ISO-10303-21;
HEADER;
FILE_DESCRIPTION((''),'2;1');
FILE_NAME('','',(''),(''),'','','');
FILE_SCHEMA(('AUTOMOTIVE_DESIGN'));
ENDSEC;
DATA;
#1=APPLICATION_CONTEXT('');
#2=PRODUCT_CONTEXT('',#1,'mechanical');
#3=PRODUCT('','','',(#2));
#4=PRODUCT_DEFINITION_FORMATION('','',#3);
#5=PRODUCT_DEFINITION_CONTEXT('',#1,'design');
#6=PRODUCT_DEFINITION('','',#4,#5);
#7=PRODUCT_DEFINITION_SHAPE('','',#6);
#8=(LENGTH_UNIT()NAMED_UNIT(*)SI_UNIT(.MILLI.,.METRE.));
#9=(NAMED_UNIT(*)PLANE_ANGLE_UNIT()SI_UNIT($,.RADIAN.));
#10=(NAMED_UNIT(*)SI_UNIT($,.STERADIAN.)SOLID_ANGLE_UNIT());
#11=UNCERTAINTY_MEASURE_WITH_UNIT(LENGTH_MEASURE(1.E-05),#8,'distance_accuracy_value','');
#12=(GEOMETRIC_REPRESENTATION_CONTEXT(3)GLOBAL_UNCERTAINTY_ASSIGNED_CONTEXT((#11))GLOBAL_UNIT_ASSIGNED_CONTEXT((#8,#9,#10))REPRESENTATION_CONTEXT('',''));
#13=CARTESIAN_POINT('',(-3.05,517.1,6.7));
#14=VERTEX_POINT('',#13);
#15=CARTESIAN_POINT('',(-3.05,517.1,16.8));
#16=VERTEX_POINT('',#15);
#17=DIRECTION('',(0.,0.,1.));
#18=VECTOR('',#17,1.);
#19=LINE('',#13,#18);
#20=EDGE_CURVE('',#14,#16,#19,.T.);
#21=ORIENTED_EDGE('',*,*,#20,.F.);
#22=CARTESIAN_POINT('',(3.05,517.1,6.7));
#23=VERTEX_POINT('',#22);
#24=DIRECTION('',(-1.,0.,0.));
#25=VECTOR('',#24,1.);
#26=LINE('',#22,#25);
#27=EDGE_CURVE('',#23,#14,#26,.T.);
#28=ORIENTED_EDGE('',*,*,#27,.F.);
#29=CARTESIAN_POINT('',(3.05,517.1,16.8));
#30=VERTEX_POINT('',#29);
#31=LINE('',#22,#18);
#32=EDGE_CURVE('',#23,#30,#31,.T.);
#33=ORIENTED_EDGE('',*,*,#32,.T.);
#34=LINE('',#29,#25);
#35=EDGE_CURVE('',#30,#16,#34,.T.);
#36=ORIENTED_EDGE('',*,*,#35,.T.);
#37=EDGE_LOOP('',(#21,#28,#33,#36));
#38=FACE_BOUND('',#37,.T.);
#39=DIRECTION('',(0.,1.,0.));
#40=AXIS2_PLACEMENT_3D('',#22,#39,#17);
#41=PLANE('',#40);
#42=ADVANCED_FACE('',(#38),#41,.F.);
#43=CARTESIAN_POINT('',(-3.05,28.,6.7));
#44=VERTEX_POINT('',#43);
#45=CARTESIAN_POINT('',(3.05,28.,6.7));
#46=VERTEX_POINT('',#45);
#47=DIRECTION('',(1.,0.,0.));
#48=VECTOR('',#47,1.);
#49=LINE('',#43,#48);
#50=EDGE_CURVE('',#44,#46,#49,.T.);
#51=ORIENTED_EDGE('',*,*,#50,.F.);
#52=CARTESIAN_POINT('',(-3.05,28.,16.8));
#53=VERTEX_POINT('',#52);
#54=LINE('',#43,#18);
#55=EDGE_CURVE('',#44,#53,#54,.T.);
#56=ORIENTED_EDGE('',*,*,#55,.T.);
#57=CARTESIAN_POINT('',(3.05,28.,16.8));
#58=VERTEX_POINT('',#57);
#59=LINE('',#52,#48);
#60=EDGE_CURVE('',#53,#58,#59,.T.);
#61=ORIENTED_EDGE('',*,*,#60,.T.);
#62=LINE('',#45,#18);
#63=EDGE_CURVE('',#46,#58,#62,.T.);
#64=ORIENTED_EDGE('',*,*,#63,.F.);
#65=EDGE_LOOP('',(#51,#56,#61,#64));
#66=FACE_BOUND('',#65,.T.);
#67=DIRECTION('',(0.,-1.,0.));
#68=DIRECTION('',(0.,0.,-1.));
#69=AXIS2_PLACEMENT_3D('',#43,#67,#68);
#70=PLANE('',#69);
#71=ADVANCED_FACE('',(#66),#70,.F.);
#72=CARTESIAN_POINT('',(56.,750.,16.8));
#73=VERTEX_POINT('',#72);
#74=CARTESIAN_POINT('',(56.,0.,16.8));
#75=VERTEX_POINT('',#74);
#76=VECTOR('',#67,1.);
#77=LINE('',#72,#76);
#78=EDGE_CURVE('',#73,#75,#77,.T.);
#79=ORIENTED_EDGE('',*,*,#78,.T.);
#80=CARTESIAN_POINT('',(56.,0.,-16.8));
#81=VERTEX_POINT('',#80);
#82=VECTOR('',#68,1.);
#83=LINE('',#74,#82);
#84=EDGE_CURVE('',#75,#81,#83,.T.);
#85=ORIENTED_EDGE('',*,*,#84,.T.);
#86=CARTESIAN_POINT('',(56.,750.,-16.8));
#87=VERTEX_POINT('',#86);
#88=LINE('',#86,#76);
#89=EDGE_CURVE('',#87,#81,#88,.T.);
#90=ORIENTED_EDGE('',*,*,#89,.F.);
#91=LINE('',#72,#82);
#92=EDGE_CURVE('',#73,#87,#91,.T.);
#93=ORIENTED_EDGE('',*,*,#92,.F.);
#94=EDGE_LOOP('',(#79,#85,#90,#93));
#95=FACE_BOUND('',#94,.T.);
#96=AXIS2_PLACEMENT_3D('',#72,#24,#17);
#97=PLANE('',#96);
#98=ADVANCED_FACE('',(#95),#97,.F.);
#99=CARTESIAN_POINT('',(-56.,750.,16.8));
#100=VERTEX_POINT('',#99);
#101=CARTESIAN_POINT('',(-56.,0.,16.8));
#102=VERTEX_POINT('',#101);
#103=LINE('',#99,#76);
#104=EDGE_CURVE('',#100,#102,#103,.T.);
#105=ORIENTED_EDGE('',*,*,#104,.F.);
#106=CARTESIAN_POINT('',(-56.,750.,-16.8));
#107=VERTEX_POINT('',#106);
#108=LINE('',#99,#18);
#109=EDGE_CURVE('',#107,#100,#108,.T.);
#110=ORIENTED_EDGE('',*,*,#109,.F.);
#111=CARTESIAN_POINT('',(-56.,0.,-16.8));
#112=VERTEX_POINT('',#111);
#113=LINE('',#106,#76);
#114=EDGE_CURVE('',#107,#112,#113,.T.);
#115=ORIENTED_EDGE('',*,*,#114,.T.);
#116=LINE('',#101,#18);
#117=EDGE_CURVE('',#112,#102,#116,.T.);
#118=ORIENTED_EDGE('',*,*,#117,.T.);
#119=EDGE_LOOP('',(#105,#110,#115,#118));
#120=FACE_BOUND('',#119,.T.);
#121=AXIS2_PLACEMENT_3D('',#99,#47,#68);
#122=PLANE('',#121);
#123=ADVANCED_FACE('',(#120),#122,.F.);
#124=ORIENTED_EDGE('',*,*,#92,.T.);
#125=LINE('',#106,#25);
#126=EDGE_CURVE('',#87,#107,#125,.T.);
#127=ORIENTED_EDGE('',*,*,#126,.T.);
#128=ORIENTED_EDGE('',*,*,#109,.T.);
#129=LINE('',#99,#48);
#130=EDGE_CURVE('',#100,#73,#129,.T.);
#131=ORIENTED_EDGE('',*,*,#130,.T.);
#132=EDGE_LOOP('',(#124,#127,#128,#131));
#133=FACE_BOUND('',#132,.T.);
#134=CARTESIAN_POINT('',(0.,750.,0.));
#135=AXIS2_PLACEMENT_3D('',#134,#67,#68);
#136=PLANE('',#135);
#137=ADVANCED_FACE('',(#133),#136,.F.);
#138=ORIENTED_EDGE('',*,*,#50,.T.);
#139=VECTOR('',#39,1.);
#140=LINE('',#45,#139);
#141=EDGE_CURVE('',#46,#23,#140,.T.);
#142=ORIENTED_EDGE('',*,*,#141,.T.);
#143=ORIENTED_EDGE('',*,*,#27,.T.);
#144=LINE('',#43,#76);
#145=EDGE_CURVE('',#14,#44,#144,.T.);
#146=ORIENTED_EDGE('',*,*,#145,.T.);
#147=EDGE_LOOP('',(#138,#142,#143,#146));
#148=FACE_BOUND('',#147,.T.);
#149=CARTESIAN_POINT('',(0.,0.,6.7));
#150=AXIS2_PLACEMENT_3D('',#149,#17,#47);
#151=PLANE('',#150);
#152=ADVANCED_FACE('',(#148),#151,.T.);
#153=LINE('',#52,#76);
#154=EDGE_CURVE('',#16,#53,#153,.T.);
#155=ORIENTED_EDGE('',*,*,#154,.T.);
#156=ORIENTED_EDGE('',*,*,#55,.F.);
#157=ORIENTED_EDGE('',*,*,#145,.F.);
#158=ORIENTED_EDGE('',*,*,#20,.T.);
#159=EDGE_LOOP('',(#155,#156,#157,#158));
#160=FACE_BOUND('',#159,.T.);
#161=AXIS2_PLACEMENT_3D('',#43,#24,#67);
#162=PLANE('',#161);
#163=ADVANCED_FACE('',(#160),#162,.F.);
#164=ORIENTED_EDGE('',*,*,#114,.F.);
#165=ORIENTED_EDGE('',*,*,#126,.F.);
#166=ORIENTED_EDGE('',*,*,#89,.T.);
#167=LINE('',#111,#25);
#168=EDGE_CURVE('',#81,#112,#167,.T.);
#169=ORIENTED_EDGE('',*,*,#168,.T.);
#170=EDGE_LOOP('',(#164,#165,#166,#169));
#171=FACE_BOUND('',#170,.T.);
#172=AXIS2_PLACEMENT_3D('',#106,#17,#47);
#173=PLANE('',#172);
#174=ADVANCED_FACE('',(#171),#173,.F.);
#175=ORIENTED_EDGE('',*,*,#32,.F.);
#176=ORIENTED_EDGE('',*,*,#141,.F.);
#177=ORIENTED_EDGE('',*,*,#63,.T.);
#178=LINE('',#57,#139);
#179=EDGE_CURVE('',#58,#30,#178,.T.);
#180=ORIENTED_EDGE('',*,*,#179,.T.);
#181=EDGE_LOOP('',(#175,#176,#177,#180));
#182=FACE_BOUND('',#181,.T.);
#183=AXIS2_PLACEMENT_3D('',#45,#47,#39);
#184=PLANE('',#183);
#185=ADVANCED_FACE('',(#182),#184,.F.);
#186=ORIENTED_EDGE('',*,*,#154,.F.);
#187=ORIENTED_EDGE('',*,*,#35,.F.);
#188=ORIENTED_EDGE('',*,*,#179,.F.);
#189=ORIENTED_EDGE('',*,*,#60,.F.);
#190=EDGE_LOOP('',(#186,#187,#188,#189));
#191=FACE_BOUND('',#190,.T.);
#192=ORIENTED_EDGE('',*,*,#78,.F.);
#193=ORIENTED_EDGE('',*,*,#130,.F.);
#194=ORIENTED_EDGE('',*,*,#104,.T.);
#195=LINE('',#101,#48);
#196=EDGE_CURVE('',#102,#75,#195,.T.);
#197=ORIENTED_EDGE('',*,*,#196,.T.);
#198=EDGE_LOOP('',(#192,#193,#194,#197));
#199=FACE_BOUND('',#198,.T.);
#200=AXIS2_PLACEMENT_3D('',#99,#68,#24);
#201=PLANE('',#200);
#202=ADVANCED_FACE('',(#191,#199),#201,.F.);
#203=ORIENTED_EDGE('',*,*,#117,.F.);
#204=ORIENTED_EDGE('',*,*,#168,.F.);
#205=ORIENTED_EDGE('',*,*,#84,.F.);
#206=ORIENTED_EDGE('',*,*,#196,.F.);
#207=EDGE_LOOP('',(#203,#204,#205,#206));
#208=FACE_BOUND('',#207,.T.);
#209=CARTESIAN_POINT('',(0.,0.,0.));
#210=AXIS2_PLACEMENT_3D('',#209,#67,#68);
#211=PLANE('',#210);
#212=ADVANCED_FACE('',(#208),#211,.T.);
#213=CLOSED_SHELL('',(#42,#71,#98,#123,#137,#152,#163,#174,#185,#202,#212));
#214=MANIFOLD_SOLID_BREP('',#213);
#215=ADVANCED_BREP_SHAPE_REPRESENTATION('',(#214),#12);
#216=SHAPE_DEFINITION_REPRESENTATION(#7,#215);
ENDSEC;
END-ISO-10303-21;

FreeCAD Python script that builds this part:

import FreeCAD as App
import Part
import Sketcher

V = App.Vector
Q = App.Units.Quantity

doc = App.newDocument("Part")
params = doc.addObject("Spreadsheet::Sheet", "Params")
for row, (alias, value) in enumerate([
    ("sketch1_width", "112 mm"),
    ("sketch1_height", "33.6 mm"),
    ("pad1_length", "750 mm"),
    ("sketch2_width", "6.1 mm"),
    ("sketch2_height", "489.1 mm"),
    ("pocket1_length", "10.1 mm"),
], start=1):
    params.set(f"A{row}", alias)
    params.set(f"B{row}", "=" + value)
    params.setAlias(f"B{row}", alias)

body = doc.addObject("PartDesign::Body", "Body")

# Sketch on XZ plane
sketch1 = body.newObject("Sketcher::SketchObject", "Sketch")
sketch1.AttachmentSupport = (doc.getObject("XZ_Plane"), [""])
sketch1.MapMode = "FlatFace"
sketch1.addGeometry(Part.LineSegment(V(-56, -16.8, 0), V(-56, 16.8, 0)), False)
sketch1.addGeometry(Part.LineSegment(V(-56, 16.8, 0), V(56, 16.8, 0)), False)
sketch1.addGeometry(Part.LineSegment(V(56, 16.8, 0), V(56, -16.8, 0)), False)
sketch1.addGeometry(Part.LineSegment(V(56, -16.8, 0), V(-56, -16.8, 0)), False)
sketch1.addConstraint(Sketcher.Constraint("Coincident", 0, 2, 1, 1))
sketch1.addConstraint(Sketcher.Constraint("Coincident", 1, 2, 2, 1))
sketch1.addConstraint(Sketcher.Constraint("Coincident", 2, 2, 3, 1))
sketch1.addConstraint(Sketcher.Constraint("Coincident", 3, 2, 0, 1))
sketch1.addConstraint(Sketcher.Constraint("Vertical", 0))
sketch1.addConstraint(Sketcher.Constraint("Horizontal", 1))
sketch1.addConstraint(Sketcher.Constraint("Vertical", 2))
sketch1.addConstraint(Sketcher.Constraint("Horizontal", 3))
sketch1.addConstraint(Sketcher.Constraint("Symmetric", 0, 2, 2, 2, -1, 1))
sketch1.addConstraint(Sketcher.Constraint("DistanceX", 1, 1, 1, 2, Q("112 mm")))
sketch1.addConstraint(Sketcher.Constraint("DistanceY", 0, 1, 0, 2, Q("33.6 mm")))
sketch1.setExpression("Constraints[9]", "Params.sketch1_width")
sketch1.setExpression("Constraints[10]", "Params.sketch1_height")
pad1 = body.newObject("PartDesign::Pad", "Pad")
pad1.Profile = sketch1
pad1.setExpression("Length", "Params.pad1_length")
pad1.Reversed = True

# Sketch on XY plane
sketch2 = body.newObject("Sketcher::SketchObject", "Sketch001")
sketch2.AttachmentSupport = (doc.getObject("XY_Plane"), [""])
sketch2.MapMode = "FlatFace"
sketch2.AttachmentOffset = App.Placement(V(0, 0, 16.8), App.Rotation())
sketch2.addGeometry(Part.LineSegment(V(-3.05, 517.1, 0), V(-3.05, 28, 0)), False)
sketch2.addGeometry(Part.LineSegment(V(-3.05, 28, 0), V(3.05, 28, 0)), False)
sketch2.addGeometry(Part.LineSegment(V(3.05, 28, 0), V(3.05, 517.1, 0)), False)
sketch2.addGeometry(Part.LineSegment(V(3.05, 517.1, 0), V(-3.05, 517.1, 0)), False)
sketch2.addConstraint(Sketcher.Constraint("Coincident", 0, 2, 1, 1))
sketch2.addConstraint(Sketcher.Constraint("Coincident", 1, 2, 2, 1))
sketch2.addConstraint(Sketcher.Constraint("Coincident", 2, 2, 3, 1))
sketch2.addConstraint(Sketcher.Constraint("Coincident", 3, 2, 0, 1))
sketch2.addConstraint(Sketcher.Constraint("Vertical", 0))
sketch2.addConstraint(Sketcher.Constraint("Horizontal", 1))
sketch2.addConstraint(Sketcher.Constraint("Vertical", 2))
sketch2.addConstraint(Sketcher.Constraint("Horizontal", 3))
sketch2.addConstraint(Sketcher.Constraint("DistanceX", 1, 1, 1, 2, Q("6.1 mm")))
sketch2.addConstraint(Sketcher.Constraint("DistanceY", 0, 2, 0, 1, Q("489.1 mm")))
sketch2.addConstraint(Sketcher.Constraint("DistanceY", -1, 1, 0, 2, Q("28 mm")))
sketch2.addConstraint(Sketcher.Constraint("DistanceX", 0, 2, -1, 1, Q("3.05 mm")))
sketch2.setExpression("Constraints[8]", "Params.sketch2_width")
sketch2.setExpression("Constraints[9]", "Params.sketch2_height")
pocket1 = body.newObject("PartDesign::Pocket", "Pocket")
pocket1.Profile = sketch2
pocket1.setExpression("Length", "Params.pocket1_length")

doc.recompute()
